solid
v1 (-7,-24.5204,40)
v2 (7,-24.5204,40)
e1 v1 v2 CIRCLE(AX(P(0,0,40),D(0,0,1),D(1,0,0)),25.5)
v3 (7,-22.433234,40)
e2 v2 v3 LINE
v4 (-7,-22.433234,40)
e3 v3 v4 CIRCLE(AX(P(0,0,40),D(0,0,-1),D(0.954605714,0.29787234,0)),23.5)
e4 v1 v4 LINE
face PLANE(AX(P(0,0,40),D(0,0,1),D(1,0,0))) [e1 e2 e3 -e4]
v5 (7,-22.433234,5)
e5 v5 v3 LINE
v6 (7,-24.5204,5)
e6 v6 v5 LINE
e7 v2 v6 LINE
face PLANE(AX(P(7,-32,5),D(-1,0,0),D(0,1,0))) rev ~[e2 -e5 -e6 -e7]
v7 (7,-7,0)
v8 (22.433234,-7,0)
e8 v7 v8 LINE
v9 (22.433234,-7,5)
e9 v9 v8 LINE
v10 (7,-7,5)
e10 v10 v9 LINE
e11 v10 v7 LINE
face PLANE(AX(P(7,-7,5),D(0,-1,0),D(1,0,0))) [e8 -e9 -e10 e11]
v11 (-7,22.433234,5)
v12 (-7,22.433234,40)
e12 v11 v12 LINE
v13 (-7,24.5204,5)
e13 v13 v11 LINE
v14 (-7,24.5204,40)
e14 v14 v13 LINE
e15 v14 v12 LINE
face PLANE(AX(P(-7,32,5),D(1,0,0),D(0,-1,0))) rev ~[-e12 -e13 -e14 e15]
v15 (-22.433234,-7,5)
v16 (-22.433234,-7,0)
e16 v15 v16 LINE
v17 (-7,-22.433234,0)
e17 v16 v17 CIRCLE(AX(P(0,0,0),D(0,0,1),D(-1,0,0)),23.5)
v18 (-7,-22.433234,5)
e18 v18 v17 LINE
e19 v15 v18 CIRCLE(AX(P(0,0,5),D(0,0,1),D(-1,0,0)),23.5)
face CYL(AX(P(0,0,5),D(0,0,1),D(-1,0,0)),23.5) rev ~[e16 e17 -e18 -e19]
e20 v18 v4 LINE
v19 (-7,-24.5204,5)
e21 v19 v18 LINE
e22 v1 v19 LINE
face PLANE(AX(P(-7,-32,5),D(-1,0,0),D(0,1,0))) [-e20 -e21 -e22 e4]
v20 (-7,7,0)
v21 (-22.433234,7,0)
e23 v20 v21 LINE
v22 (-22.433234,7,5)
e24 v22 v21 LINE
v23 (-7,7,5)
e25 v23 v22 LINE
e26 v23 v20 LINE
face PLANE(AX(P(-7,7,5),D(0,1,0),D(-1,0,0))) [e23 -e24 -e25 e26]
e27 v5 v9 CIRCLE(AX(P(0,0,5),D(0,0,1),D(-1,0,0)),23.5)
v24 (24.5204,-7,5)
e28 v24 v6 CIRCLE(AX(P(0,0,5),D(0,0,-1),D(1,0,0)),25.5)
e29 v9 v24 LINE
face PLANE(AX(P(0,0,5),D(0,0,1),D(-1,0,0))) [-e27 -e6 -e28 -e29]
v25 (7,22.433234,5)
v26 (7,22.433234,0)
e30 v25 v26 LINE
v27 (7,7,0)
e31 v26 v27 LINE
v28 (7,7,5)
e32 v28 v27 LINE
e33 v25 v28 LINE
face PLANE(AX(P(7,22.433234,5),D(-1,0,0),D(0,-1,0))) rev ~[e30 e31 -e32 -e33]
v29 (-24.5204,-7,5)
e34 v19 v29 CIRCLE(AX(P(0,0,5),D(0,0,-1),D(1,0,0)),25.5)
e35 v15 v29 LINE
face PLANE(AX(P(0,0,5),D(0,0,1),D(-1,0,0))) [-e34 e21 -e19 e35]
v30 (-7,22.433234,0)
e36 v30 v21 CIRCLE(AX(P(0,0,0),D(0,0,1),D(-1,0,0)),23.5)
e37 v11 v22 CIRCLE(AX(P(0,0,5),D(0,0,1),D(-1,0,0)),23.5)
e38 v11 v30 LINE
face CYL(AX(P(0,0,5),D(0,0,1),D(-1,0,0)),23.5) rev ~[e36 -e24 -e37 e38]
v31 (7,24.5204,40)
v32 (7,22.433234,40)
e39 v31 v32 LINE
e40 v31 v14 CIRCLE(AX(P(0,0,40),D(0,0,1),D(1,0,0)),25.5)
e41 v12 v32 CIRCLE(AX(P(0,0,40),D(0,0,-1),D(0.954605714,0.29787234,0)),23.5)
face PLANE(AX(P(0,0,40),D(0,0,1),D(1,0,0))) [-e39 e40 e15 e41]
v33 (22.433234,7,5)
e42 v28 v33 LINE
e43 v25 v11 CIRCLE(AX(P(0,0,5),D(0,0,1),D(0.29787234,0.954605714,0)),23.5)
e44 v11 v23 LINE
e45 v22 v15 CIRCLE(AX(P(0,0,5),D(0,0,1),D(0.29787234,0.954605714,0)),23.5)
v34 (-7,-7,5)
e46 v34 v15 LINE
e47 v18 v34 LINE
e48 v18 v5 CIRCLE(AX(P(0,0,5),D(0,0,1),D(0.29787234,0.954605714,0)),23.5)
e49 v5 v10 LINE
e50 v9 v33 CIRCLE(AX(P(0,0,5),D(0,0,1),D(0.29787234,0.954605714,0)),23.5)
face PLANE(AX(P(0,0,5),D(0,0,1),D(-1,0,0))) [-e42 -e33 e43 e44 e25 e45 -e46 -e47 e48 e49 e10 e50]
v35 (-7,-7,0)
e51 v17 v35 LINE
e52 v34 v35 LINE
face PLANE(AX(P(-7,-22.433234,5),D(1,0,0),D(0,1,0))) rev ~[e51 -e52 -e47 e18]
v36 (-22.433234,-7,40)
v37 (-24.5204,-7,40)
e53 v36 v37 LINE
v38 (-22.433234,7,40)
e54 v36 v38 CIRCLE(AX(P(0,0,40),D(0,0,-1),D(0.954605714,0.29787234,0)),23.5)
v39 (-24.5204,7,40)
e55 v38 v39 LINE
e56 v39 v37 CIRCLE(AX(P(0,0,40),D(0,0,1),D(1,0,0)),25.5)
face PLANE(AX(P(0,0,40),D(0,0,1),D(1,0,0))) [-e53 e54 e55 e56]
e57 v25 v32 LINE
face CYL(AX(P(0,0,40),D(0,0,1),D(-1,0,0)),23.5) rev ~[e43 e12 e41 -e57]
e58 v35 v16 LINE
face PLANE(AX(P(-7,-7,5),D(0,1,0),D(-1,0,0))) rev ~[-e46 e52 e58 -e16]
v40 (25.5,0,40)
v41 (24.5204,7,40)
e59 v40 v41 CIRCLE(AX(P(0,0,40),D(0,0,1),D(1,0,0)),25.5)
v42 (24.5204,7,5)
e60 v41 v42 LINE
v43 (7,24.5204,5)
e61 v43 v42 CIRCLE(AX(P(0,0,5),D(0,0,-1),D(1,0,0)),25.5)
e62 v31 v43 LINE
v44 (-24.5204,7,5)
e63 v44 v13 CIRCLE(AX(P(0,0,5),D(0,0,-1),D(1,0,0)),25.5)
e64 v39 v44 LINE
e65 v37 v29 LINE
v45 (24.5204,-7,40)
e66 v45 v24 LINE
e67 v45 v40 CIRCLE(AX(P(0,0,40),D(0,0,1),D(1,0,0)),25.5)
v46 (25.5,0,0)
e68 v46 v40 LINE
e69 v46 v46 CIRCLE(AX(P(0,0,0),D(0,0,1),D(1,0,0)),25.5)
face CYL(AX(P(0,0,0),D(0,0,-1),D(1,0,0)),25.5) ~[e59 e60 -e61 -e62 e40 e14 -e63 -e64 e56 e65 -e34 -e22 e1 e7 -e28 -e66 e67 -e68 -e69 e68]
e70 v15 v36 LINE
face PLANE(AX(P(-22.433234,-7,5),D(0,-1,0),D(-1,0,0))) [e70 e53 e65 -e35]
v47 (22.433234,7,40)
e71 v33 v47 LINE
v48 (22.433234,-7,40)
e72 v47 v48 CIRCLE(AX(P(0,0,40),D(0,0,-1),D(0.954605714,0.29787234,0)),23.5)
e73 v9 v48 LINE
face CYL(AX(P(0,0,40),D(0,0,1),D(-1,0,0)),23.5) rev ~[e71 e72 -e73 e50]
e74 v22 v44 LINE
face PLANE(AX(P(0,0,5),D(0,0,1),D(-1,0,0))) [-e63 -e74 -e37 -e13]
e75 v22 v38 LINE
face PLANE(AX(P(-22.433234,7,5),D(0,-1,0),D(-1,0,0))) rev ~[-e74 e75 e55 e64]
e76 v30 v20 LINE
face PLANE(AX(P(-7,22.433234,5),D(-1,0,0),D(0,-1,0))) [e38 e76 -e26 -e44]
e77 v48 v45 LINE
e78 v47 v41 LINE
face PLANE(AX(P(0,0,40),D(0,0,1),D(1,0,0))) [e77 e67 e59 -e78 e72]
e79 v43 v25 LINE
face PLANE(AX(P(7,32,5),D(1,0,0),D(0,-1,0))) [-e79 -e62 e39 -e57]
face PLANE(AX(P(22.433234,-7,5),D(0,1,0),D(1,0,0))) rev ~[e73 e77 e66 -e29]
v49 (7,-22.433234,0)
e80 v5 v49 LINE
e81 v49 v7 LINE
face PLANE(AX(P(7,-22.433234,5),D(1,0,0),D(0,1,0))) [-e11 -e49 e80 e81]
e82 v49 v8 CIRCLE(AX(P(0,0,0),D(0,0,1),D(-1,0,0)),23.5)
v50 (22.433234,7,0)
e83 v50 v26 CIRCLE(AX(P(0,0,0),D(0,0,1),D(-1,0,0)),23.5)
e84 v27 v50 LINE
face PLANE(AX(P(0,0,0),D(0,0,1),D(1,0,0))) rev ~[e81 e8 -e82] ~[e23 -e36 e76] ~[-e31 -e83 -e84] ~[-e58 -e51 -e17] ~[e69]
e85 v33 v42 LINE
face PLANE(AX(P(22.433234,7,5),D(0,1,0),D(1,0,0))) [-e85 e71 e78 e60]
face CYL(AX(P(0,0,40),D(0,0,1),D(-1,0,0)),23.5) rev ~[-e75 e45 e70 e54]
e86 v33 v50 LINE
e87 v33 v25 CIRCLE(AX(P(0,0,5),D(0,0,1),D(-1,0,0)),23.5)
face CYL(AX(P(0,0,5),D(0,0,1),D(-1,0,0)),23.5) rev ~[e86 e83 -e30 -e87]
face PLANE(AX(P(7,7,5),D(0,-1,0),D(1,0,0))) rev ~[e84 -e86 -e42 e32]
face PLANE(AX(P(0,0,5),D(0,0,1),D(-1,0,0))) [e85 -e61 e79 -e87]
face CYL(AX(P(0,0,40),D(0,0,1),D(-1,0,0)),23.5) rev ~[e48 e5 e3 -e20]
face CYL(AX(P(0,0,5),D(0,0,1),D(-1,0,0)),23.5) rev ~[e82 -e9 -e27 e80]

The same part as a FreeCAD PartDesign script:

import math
import FreeCAD as App
import Part
import Sketcher
from FreeCAD import Vector
Q = App.Units.Quantity

doc = App.newDocument("Part")
body = doc.addObject("PartDesign::Body", "Body")

# Sketch on XY plane
sketch1 = body.newObject("Sketcher::SketchObject", "Sketch")
sketch1.AttachmentSupport = (doc.getObject("XY_Plane"), [""])
sketch1.MapMode = "FlatFace"
sketch1.addGeometry(Part.Circle(Vector(0, 0, 0), Vector(0, 0, 1), 25.5), False)
sketch1.addConstraint(Sketcher.Constraint("Coincident", 0, 3, -1, 1))
sketch1.addConstraint(Sketcher.Constraint("Diameter", 0, Q("51 mm")))
pad1 = body.newObject("PartDesign::Pad", "Pad")
pad1.Profile = sketch1
pad1.Length = 40

# Sketch on XY plane
sketch2 = body.newObject("Sketcher::SketchObject", "Sketch001")
sketch2.AttachmentSupport = (doc.getObject("XY_Plane"), [""])
sketch2.MapMode = "FlatFace"
sketch2.AttachmentOffset = App.Placement(Vector(0, 0, 40), App.Rotation())
sketch2.addGeometry(Part.Circle(Vector(0, 0, 0), Vector(0, 0, 1), 23.5), False)
sketch2.addConstraint(Sketcher.Constraint("Coincident", 0, 3, -1, 1))
sketch2.addConstraint(Sketcher.Constraint("Diameter", 0, Q("47 mm")))
pocket1 = body.newObject("PartDesign::Pocket", "Pocket")
pocket1.Profile = sketch2
pocket1.Length = 35

# Sketch on XY plane
sketch3 = body.newObject("Sketcher::SketchObject", "Sketch002")
sketch3.AttachmentSupport = (doc.getObject("XY_Plane"), [""])
sketch3.MapMode = "FlatFace"
sketch3.AttachmentOffset = App.Placement(Vector(0, 0, 5), App.Rotation())
sketch3.addGeometry(Part.LineSegment(Vector(7, 32, 0), Vector(7, 22.433234, 0)), False)
sketch3.addGeometry(Part.ArcOfCircle(Part.Circle(Vector(0, 0, 0), Vector(0, 0, 1), 23.5), math.radians(17.329856), math.radians(72.670144)), False)
sketch3.addGeometry(Part.LineSegment(Vector(22.433234, 7, 0), Vector(32, 7, 0)), False)
sketch3.addGeometry(Part.LineSegment(Vector(32, 7, 0), Vector(32, 32, 0)), False)
sketch3.addGeometry(Part.LineSegment(Vector(32, 32, 0), Vector(7, 32, 0)), False)
sketch3.addConstraint(Sketcher.Constraint("Coincident", 0, 2, 1, 2))
sketch3.addConstraint(Sketcher.Constraint("Coincident", 1, 1, 2, 1))
sketch3.addConstraint(Sketcher.Constraint("Coincident", 2, 2, 3, 1))
sketch3.addConstraint(Sketcher.Constraint("Coincident", 3, 2, 4, 1))
sketch3.addConstraint(Sketcher.Constraint("Coincident", 4, 2, 0, 1))
sketch3.addConstraint(Sketcher.Constraint("Vertical", 0))
sketch3.addConstraint(Sketcher.Constraint("Horizontal", 2))
sketch3.addConstraint(Sketcher.Constraint("Vertical", 3))
sketch3.addConstraint(Sketcher.Constraint("Horizontal", 4))
sketch3.addConstraint(Sketcher.Constraint("Coincident", 1, 3, -1, 1))
sketch3.addConstraint(Sketcher.Constraint("Equal", 2, 0))
sketch3.addConstraint(Sketcher.Constraint("Equal", 4, 3))
sketch3.addConstraint(Sketcher.Constraint("DistanceX", 4, 2, 4, 1, Q("25 mm")))
sketch3.addConstraint(Sketcher.Constraint("Radius", 1, Q("23.5 mm")))
sketch3.addConstraint(Sketcher.Constraint("DistanceX", -1, 1, 0, 2, Q("7 mm")))
pocket2 = body.newObject("PartDesign::Pocket", "Pocket001")
pocket2.Profile = sketch3
pocket2.Length = 35
pocket2.Reversed = True

# Sketch on XY plane
sketch4 = body.newObject("Sketcher::SketchObject", "Sketch003")
sketch4.AttachmentSupport = (doc.getObject("XY_Plane"), [""])
sketch4.MapMode = "FlatFace"
sketch4.AttachmentOffset = App.Placement(Vector(0, 0, 5), App.Rotation())
sketch4.addGeometry(Part.LineSegment(Vector(-32, 7, 0), Vector(-22.433234, 7, 0)), False)
sketch4.addGeometry(Part.ArcOfCircle(Part.Circle(Vector(0, 0, 0), Vector(0, 0, 1), 23.5), math.radians(107.329856), math.radians(162.670144)), False)
sketch4.addGeometry(Part.LineSegment(Vector(-7, 22.433234, 0), Vector(-7, 32, 0)), False)
sketch4.addGeometry(Part.LineSegment(Vector(-7, 32, 0), Vector(-32, 32, 0)), False)
sketch4.addGeometry(Part.LineSegment(Vector(-32, 32, 0), Vector(-32, 7, 0)), False)
sketch4.addConstraint(Sketcher.Constraint("Coincident", 0, 2, 1, 2))
sketch4.addConstraint(Sketcher.Constraint("Coincident", 1, 1, 2, 1))
sketch4.addConstraint(Sketcher.Constraint("Coincident", 2, 2, 3, 1))
sketch4.addConstraint(Sketcher.Constraint("Coincident", 3, 2, 4, 1))
sketch4.addConstraint(Sketcher.Constraint("Coincident", 4, 2, 0, 1))
sketch4.addConstraint(Sketcher.Constraint("Horizontal", 0))
sketch4.addConstraint(Sketcher.Constraint("Vertical", 2))
sketch4.addConstraint(Sketcher.Constraint("Horizontal", 3))
sketch4.addConstraint(Sketcher.Constraint("Vertical", 4))
sketch4.addConstraint(Sketcher.Constraint("Coincident", 1, 3, -1, 1))
sketch4.addConstraint(Sketcher.Constraint("Equal", 0, 2))
sketch4.addConstraint(Sketcher.Constraint("Equal", 3, 4))
sketch4.addConstraint(Sketcher.Constraint("DistanceX", 3, 2, 3, 1, Q("25 mm")))
sketch4.addConstraint(Sketcher.Constraint("Radius", 1, Q("23.5 mm")))
sketch4.addConstraint(Sketcher.Constraint("DistanceY", -1, 1, 0, 2, Q("7 mm")))
pocket3 = body.newObject("PartDesign::Pocket", "Pocket002")
pocket3.Profile = sketch4
pocket3.Length = 35
pocket3.Reversed = True

# Sketch on XY plane
sketch5 = body.newObject("Sketcher::SketchObject", "Sketch004")
sketch5.AttachmentSupport = (doc.getObject("XY_Plane"), [""])
sketch5.MapMode = "FlatFace"
sketch5.AttachmentOffset = App.Placement(Vector(0, 0, 5), App.Rotation())
sketch5.addGeometry(Part.ArcOfCircle(Part.Circle(Vector(0, 0, 0), Vector(0, 0, 1), 23.5), math.radians(-162.670144), math.radians(-107.329856)), False)
sketch5.addGeometry(Part.LineSegment(Vector(-22.433234, -7, 0), Vector(-32, -7, 0)), False)
sketch5.addGeometry(Part.LineSegment(Vector(-32, -7, 0), Vector(-32, -32, 0)), False)
sketch5.addGeometry(Part.LineSegment(Vector(-32, -32, 0), Vector(-7, -32, 0)), False)
sketch5.addGeometry(Part.LineSegment(Vector(-7, -32, 0), Vector(-7, -22.433234, 0)), False)
sketch5.addGeometry(Part.ArcOfCircle(Part.Circle(Vector(0, 0, 0), Vector(0, 0, 1), 23.5), math.radians(-72.670144), math.radians(-17.329856)), False)
sketch5.addGeometry(Part.LineSegment(Vector(7, -22.433234, 0), Vector(7, -32, 0)), False)
sketch5.addGeometry(Part.LineSegment(Vector(7, -32, 0), Vector(32, -32, 0)), False)
sketch5.addGeometry(Part.LineSegment(Vector(32, -32, 0), Vector(32, -7, 0)), False)
sketch5.addGeometry(Part.LineSegment(Vector(32, -7, 0), Vector(22.433234, -7, 0)), False)
sketch5.addConstraint(Sketcher.Constraint("Coincident", 0, 1, 1, 1))
sketch5.addConstraint(Sketcher.Constraint("Coincident", 1, 2, 2, 1))
sketch5.addConstraint(Sketcher.Constraint("Coincident", 2, 2, 3, 1))
sketch5.addConstraint(Sketcher.Constraint("Coincident", 3, 2, 4, 1))
sketch5.addConstraint(Sketcher.Constraint("Coincident", 4, 2, 0, 2))
sketch5.addConstraint(Sketcher.Constraint("Coincident", 5, 1, 6, 1))
sketch5.addConstraint(Sketcher.Constraint("Coincident", 6, 2, 7, 1))
sketch5.addConstraint(Sketcher.Constraint("Coincident", 7, 2, 8, 1))
sketch5.addConstraint(Sketcher.Constraint("Coincident", 8, 2, 9, 1))
sketch5.addConstraint(Sketcher.Constraint("Coincident", 9, 2, 5, 2))
sketch5.addConstraint(Sketcher.Constraint("Horizontal", 1))
sketch5.addConstraint(Sketcher.Constraint("Vertical", 2))
sketch5.addConstraint(Sketcher.Constraint("Horizontal", 3))
sketch5.addConstraint(Sketcher.Constraint("Vertical", 4))
sketch5.addConstraint(Sketcher.Constraint("Vertical", 6))
sketch5.addConstraint(Sketcher.Constraint("Horizontal", 7))
sketch5.addConstraint(Sketcher.Constraint("Vertical", 8))
sketch5.addConstraint(Sketcher.Constraint("Horizontal", 9))
sketch5.addConstraint(Sketcher.Constraint("Coincident", 0, 3, -1, 1))
sketch5.addConstraint(Sketcher.Constraint("Coincident", 5, 3, -1, 1))
sketch5.addConstraint(Sketcher.Constraint("Equal", 0, 5))
sketch5.addConstraint(Sketcher.Constraint("Symmetric", 3, 2, 6, 2, -2))
sketch5.addConstraint(Sketcher.Constraint("Symmetric", 1, 2, 8, 2, -2))
sketch5.addConstraint(Sketcher.Constraint("Equal", 7, 2))
sketch5.addConstraint(Sketcher.Constraint("Equal", 9, 4))
sketch5.addConstraint(Sketcher.Constraint("DistanceX", 3, 1, 3, 2, Q("25 mm")))
sketch5.addConstraint(Sketcher.Constraint("Radius", 0, Q("23.5 mm")))
sketch5.addConstraint(Sketcher.Constraint("DistanceY", 0, 1, -1, 1, Q("7 mm")))
pocket4 = body.newObject("PartDesign::Pocket", "Pocket003")
pocket4.Profile = sketch5
pocket4.Length = 35
pocket4.Reversed = True

# Sketch on XY plane
sketch6 = body.newObject("Sketcher::SketchObject", "Sketch005")
sketch6.AttachmentSupport = (doc.getObject("XY_Plane"), [""])
sketch6.MapMode = "FlatFace"
sketch6.AttachmentOffset = App.Placement(Vector(0, 0, 5), App.Rotation())
sketch6.addGeometry(Part.LineSegment(Vector(-7, -7, 0), Vector(-22.433234, -7, 0)), False)
sketch6.addGeometry(Part.ArcOfCircle(Part.Circle(Vector(0, 0, 0), Vector(0, 0, 1), 23.5), math.radians(-162.670144), math.radians(-107.329856)), False)
sketch6.addGeometry(Part.LineSegment(Vector(-7, -22.433234, 0), Vector(-7, -7, 0)), False)
sketch6.addGeometry(Part.ArcOfCircle(Part.Circle(Vector(0, 0, 0), Vector(0, 0, 1), 23.5), math.radians(107.329856), math.radians(162.670144)), False)
sketch6.addGeometry(Part.LineSegment(Vector(-22.433234, 7, 0), Vector(-7, 7, 0)), False)
sketch6.addGeometry(Part.LineSegment(Vector(-7, 7, 0), Vector(-7, 22.433234, 0)), False)
sketch6.addGeometry(Part.LineSegment(Vector(7, -7, 0), Vector(7, -22.433234, 0)), False)
sketch6.addGeometry(Part.ArcOfCircle(Part.Circle(Vector(0, 0, 0), Vector(0, 0, 1), 23.5), math.radians(-72.670144), math.radians(-17.329856)), False)
sketch6.addGeometry(Part.LineSegment(Vector(22.433234, -7, 0), Vector(7, -7, 0)), False)
sketch6.addGeometry(Part.ArcOfCircle(Part.Circle(Vector(0, 0, 0), Vector(0, 0, 1), 23.5), math.radians(17.329856), math.radians(72.670144)), False)
sketch6.addGeometry(Part.LineSegment(Vector(7, 22.433234, 0), Vector(7, 7, 0)), False)
sketch6.addGeometry(Part.LineSegment(Vector(7, 7, 0), Vector(22.433234, 7, 0)), False)
sketch6.addConstraint(Sketcher.Constraint("Coincident", 0, 2, 1, 1))
sketch6.addConstraint(Sketcher.Constraint("Coincident", 1, 2, 2, 1))
sketch6.addConstraint(Sketcher.Constraint("Coincident", 2, 2, 0, 1))
sketch6.addConstraint(Sketcher.Constraint("Coincident", 3, 2, 4, 1))
sketch6.addConstraint(Sketcher.Constraint("Coincident", 4, 2, 5, 1))
sketch6.addConstraint(Sketcher.Constraint("Coincident", 5, 2, 3, 1))
sketch6.addConstraint(Sketcher.Constraint("Coincident", 6, 2, 7, 1))
sketch6.addConstraint(Sketcher.Constraint("Coincident", 7, 2, 8, 1))
sketch6.addConstraint(Sketcher.Constraint("Coincident", 8, 2, 6, 1))
sketch6.addConstraint(Sketcher.Constraint("Coincident", 9, 2, 10, 1))
sketch6.addConstraint(Sketcher.Constraint("Coincident", 10, 2, 11, 1))
sketch6.addConstraint(Sketcher.Constraint("Coincident", 11, 2, 9, 1))
sketch6.addConstraint(Sketcher.Constraint("Horizontal", 0))
sketch6.addConstraint(Sketcher.Constraint("Vertical", 2))
sketch6.addConstraint(Sketcher.Constraint("Horizontal", 4))
sketch6.addConstraint(Sketcher.Constraint("Vertical", 5))
sketch6.addConstraint(Sketcher.Constraint("Vertical", 6))
sketch6.addConstraint(Sketcher.Constraint("Horizontal", 8))
sketch6.addConstraint(Sketcher.Constraint("Vertical", 10))
sketch6.addConstraint(Sketcher.Constraint("Horizontal", 11))
sketch6.addConstraint(Sketcher.Constraint("Coincident", 1, 3, -1, 1))
sketch6.addConstraint(Sketcher.Constraint("Coincident", 3, 3, -1, 1))
sketch6.addConstraint(Sketcher.Constraint("Coincident", 7, 3, -1, 1))
sketch6.addConstraint(Sketcher.Constraint("Coincident", 9, 3, -1, 1))
sketch6.addConstraint(Sketcher.Constraint("Equal", 1, 3))
sketch6.addConstraint(Sketcher.Constraint("Equal", 3, 7))
sketch6.addConstraint(Sketcher.Constraint("Equal", 7, 9))
sketch6.addConstraint(Sketcher.Constraint("Symmetric", 4, 2, 8, 2, -1, 1))
sketch6.addConstraint(Sketcher.Constraint("Symmetric", 2, 2, 10, 2, -1, 1))
sketch6.addConstraint(Sketcher.Constraint("Symmetric", 2, 2, 8, 2, -2))
sketch6.addConstraint(Sketcher.Constraint("Equal", 11, 2))
sketch6.addConstraint(Sketcher.Constraint("Radius", 1, Q("23.5 mm")))
sketch6.addConstraint(Sketcher.Constraint("DistanceY", 0, 2, -1, 1, Q("7 mm")))
pocket5 = body.newObject("PartDesign::Pocket", "Pocket004")
pocket5.Profile = sketch6
pocket5.Length = 5

doc.recompute()
